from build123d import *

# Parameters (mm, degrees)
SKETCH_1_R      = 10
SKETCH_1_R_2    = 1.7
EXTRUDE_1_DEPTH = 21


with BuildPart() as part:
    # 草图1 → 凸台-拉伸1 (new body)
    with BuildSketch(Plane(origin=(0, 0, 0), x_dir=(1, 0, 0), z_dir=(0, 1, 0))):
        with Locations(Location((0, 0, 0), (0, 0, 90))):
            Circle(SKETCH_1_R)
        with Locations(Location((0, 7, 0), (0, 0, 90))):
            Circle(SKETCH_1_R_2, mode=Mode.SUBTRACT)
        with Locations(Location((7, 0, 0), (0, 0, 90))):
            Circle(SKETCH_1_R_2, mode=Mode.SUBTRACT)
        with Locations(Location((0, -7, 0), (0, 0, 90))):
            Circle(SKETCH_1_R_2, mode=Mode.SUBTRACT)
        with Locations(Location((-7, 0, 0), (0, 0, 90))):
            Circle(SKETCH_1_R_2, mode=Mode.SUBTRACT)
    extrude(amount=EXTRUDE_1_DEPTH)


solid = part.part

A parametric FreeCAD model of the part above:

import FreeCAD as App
import Part
import Sketcher
from FreeCAD import Vector
Q = App.Units.Quantity

doc = App.newDocument("Part")
body = doc.addObject("PartDesign::Body", "Body")

# Sketch on XZ plane
sketch1 = body.newObject("Sketcher::SketchObject", "Sketch")
sketch1.AttachmentSupport = (doc.getObject("XZ_Plane"), [""])
sketch1.MapMode = "FlatFace"
sketch1.addGeometry([
    Part.Circle(Vector(0, 0, 0), Vector(0, 0, 1), 10),  # 0
    Part.Circle(Vector(7, 0, 0), Vector(0, 0, 1), 1.7),  # 1
    Part.Circle(Vector(0, 7, 0), Vector(0, 0, 1), 1.7),  # 2
    Part.Circle(Vector(-7, 0, 0), Vector(0, 0, 1), 1.7),  # 3
    Part.Circle(Vector(0, -7, 0), Vector(0, 0, 1), 1.7),  # 4
], False)
sketch1.addConstraint([
    Sketcher.Constraint("Coincident", 0, 3, -1, 1),
    Sketcher.Constraint("Equal", 1, 2),
    Sketcher.Constraint("Equal", 2, 3),
    Sketcher.Constraint("Equal", 3, 4),
    Sketcher.Constraint("Symmetric", 1, 3, 3, 3, -1, 1),
    Sketcher.Constraint("Symmetric", 2, 3, 4, 3, -1, 1),
    Sketcher.Constraint("PointOnObject", 1, 3, -1),
    Sketcher.Constraint("PointOnObject", 2, 3, -2),
    Sketcher.Constraint("Diameter", 0, Q("20 mm")),
    Sketcher.Constraint("Diameter", 1, Q("3.4 mm")),
    Sketcher.Constraint("DistanceX", -1, 1, 1, 3, Q("7 mm")),
    Sketcher.Constraint("DistanceY", -1, 1, 2, 3, Q("7 mm")),
])
pad1 = body.newObject("PartDesign::Pad", "Pad")
pad1.Profile = sketch1
pad1.Length = 21
pad1.Reversed = True

doc.recompute()
